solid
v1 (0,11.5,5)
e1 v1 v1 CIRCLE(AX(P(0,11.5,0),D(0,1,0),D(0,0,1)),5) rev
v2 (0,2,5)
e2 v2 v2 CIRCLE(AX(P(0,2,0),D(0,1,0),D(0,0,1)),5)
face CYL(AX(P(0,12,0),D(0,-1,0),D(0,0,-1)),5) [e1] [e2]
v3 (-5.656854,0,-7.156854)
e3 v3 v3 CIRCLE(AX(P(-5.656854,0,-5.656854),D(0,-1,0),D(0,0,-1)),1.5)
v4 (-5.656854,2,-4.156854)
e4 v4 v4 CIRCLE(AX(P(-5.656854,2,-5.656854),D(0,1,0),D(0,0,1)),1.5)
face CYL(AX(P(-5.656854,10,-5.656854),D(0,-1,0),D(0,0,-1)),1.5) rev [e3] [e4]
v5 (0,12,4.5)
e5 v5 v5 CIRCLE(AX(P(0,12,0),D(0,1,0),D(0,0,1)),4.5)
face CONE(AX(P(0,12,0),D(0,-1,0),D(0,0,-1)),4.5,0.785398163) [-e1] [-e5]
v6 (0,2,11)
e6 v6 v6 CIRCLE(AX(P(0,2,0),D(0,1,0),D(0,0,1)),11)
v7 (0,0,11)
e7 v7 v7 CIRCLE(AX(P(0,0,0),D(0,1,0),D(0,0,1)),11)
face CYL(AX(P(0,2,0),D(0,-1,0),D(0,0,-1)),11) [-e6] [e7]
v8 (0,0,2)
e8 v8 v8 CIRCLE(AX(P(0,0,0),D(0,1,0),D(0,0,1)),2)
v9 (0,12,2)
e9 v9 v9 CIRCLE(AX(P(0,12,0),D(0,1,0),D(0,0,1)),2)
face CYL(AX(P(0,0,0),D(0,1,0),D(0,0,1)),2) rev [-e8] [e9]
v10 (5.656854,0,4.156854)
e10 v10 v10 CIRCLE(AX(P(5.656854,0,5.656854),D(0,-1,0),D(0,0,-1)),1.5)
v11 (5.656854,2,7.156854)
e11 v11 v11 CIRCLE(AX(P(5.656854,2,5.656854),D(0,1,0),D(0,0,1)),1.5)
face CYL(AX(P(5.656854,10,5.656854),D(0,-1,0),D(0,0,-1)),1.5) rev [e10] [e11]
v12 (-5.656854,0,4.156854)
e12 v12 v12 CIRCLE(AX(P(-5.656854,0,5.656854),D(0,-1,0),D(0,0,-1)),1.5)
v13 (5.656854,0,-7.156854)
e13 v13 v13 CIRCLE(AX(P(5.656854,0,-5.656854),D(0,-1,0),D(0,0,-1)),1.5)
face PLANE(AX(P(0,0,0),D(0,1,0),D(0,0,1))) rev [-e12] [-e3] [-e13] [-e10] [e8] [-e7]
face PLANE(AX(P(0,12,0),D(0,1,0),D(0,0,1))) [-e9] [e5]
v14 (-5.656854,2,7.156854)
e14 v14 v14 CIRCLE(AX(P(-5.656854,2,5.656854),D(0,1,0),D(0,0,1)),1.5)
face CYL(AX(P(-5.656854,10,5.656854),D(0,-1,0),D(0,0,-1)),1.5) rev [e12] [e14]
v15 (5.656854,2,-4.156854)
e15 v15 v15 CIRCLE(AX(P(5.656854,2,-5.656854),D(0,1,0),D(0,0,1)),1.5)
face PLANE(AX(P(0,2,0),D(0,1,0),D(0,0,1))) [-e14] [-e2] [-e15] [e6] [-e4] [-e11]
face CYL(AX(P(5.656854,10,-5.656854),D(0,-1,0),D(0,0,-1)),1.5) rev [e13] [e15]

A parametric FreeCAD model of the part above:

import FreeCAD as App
import Part
import Sketcher

V = App.Vector
Q = App.Units.Quantity


def edges_at(feature, points):
    """Names of the edges that pass closest to the given points."""
    edges = feature.Shape.Edges
    near = lambda p: min(range(len(edges)), key=lambda i: edges[i].distToShape(Part.Vertex(*p))[0])
    return sorted({f"Edge{near(p) + 1}" for p in points})

doc = App.newDocument("Part")
body = doc.addObject("PartDesign::Body", "Body")

# Sketch on XZ plane
sketch1 = body.newObject("Sketcher::SketchObject", "Sketch")
sketch1.AttachmentSupport = (doc.getObject("XZ_Plane"), [""])
sketch1.MapMode = "FlatFace"
sketch1.addGeometry(Part.Circle(V(0, 0, 0), V(0, 0, 1), 11), False)
sketch1.addConstraint(Sketcher.Constraint("Coincident", 0, 3, -1, 1))
sketch1.addConstraint(Sketcher.Constraint("Diameter", 0, Q("22 mm")))
pad1 = body.newObject("PartDesign::Pad", "Pad")
pad1.Profile = sketch1
pad1.Length = 2
pad1.Reversed = True

# Sketch on XZ plane
sketch2 = body.newObject("Sketcher::SketchObject", "Sketch001")
sketch2.AttachmentSupport = (doc.getObject("XZ_Plane"), [""])
sketch2.MapMode = "FlatFace"
sketch2.AttachmentOffset = App.Placement(V(0, 0, -2), App.Rotation())
sketch2.addGeometry(Part.Circle(V(0, 0, 0), V(0, 0, 1), 5), False)
sketch2.addConstraint(Sketcher.Constraint("Coincident", 0, 3, -1, 1))
sketch2.addConstraint(Sketcher.Constraint("Diameter", 0, Q("10 mm")))
pad2 = body.newObject("PartDesign::Pad", "Pad001")
pad2.Profile = sketch2
pad2.Length = 10
pad2.Reversed = True

# Sketch on XZ plane
sketch3 = body.newObject("Sketcher::SketchObject", "Sketch002")
sketch3.AttachmentSupport = (doc.getObject("XZ_Plane"), [""])
sketch3.MapMode = "FlatFace"
sketch3.AttachmentOffset = App.Placement(V(0, 0, -12), App.Rotation())
sketch3.addGeometry(Part.Circle(V(0, 0, 0), V(0, 0, 1), 2), False)
sketch3.addConstraint(Sketcher.Constraint("Coincident", 0, 3, -1, 1))
sketch3.addConstraint(Sketcher.Constraint("Diameter", 0, Q("4 mm")))
pocket1 = body.newObject("PartDesign::Pocket", "Pocket")
pocket1.Profile = sketch3
pocket1.Type = "ThroughAll"
pocket1.Reversed = True
doc.recompute()

chamfer = body.newObject("PartDesign::Chamfer", "Chamfer")
chamfer.Base = (pocket1, edges_at(pocket1, [(-5, 12, 0)]))
chamfer.Size = 0.5

# Sketch on XZ plane
sketch4 = body.newObject("Sketcher::SketchObject", "Sketch003")
sketch4.AttachmentSupport = (doc.getObject("XZ_Plane"), [""])
sketch4.MapMode = "FlatFace"
sketch4.addGeometry(Part.Circle(V(-5.7, 5.7, 0), V(0, 0, 1), 1.5), False)
sketch4.addGeometry(Part.Circle(V(5.7, 5.7, 0), V(0, 0, 1), 1.5), False)
sketch4.addGeometry(Part.Circle(V(5.7, -5.7, 0), V(0, 0, 1), 1.5), False)
sketch4.addGeometry(Part.Circle(V(-5.7, -5.7, 0), V(0, 0, 1), 1.5), False)
sketch4.addConstraint(Sketcher.Constraint("Equal", 0, 1))
sketch4.addConstraint(Sketcher.Constraint("Equal", 1, 2))
sketch4.addConstraint(Sketcher.Constraint("Equal", 2, 3))
sketch4.addConstraint(Sketcher.Constraint("Symmetric", 0, 3, 2, 3, -1, 1))
sketch4.addConstraint(Sketcher.Constraint("Symmetric", 1, 3, 3, 3, -1, 1))
sketch4.addConstraint(Sketcher.Constraint("Symmetric", 0, 3, 1, 3, -2))
sketch4.addConstraint(Sketcher.Constraint("Diameter", 0, Q("3 mm")))
sketch4.addConstraint(Sketcher.Constraint("DistanceX", 0, 3, 1, 3, Q("11.313708 mm")))
sketch4.addConstraint(Sketcher.Constraint("DistanceY", 2, 3, 1, 3, Q("11.313708 mm")))
pocket2 = body.newObject("PartDesign::Pocket", "Pocket001")
pocket2.Profile = sketch4
pocket2.Length = 10

doc.recompute()
